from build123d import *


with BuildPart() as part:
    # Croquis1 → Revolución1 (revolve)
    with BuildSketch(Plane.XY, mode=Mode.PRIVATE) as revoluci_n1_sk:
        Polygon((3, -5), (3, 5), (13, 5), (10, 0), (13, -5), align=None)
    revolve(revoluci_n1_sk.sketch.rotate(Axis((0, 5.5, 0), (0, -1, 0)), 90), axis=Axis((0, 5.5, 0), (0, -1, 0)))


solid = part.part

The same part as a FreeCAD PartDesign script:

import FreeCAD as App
import Part
import Sketcher

V = App.Vector
Q = App.Units.Quantity


def add_polygon(sketch, points):
    """Adds a closed chain of lines whose ends are joined by coincident constraints."""
    first, n = sketch.GeometryCount, len(points)
    for a, b in zip(points, points[1:] + points[:1]):
        sketch.addGeometry(Part.LineSegment(App.Vector(*a, 0), App.Vector(*b, 0)), False)
    for i in range(n):
        sketch.addConstraint(Sketcher.Constraint("Coincident", first + i, 2, first + (i + 1) % n, 1))

doc = App.newDocument("Part")
body = doc.addObject("PartDesign::Body", "Body")

sketch1 = doc.addObject("Sketcher::SketchObject", "Sketch")
body.addObject(sketch1)
sketch1.AttachmentSupport = (doc.XY_Plane, [""])
sketch1.MapMode = "FlatFace"
add_polygon(sketch1, [(3, 5), (3, -5), (13, -5), (10, 0), (13, 5)])
sketch1.addConstraint(Sketcher.Constraint("Vertical", 0))
sketch1.addConstraint(Sketcher.Constraint("Horizontal", 1))
sketch1.addConstraint(Sketcher.Constraint("Horizontal", 4))
sketch1.addConstraint(Sketcher.Constraint("Symmetric", 1, 2, 3, 2, -1))
sketch1.addConstraint(Sketcher.Constraint("PointOnObject", 2, 2, -1))
sketch1.addConstraint(Sketcher.Constraint("Equal", 4, 0))
sketch1.addConstraint(Sketcher.Constraint("DistanceX", 1, 1, 1, 2, Q("10 mm")))
sketch1.addConstraint(Sketcher.Constraint("DistanceX", -1, 1, 0, 2, Q("3 mm")))
sketch1.addConstraint(Sketcher.Constraint("DistanceX", -1, 1, 2, 2, Q("10 mm")))
revolution = doc.addObject("PartDesign::Revolution", "Revolution")
body.addObject(revolution)
revolution.Profile = sketch1
revolution.ReferenceAxis = (sketch1, ["V_Axis"])
revolution.Angle = 360

doc.recompute()
